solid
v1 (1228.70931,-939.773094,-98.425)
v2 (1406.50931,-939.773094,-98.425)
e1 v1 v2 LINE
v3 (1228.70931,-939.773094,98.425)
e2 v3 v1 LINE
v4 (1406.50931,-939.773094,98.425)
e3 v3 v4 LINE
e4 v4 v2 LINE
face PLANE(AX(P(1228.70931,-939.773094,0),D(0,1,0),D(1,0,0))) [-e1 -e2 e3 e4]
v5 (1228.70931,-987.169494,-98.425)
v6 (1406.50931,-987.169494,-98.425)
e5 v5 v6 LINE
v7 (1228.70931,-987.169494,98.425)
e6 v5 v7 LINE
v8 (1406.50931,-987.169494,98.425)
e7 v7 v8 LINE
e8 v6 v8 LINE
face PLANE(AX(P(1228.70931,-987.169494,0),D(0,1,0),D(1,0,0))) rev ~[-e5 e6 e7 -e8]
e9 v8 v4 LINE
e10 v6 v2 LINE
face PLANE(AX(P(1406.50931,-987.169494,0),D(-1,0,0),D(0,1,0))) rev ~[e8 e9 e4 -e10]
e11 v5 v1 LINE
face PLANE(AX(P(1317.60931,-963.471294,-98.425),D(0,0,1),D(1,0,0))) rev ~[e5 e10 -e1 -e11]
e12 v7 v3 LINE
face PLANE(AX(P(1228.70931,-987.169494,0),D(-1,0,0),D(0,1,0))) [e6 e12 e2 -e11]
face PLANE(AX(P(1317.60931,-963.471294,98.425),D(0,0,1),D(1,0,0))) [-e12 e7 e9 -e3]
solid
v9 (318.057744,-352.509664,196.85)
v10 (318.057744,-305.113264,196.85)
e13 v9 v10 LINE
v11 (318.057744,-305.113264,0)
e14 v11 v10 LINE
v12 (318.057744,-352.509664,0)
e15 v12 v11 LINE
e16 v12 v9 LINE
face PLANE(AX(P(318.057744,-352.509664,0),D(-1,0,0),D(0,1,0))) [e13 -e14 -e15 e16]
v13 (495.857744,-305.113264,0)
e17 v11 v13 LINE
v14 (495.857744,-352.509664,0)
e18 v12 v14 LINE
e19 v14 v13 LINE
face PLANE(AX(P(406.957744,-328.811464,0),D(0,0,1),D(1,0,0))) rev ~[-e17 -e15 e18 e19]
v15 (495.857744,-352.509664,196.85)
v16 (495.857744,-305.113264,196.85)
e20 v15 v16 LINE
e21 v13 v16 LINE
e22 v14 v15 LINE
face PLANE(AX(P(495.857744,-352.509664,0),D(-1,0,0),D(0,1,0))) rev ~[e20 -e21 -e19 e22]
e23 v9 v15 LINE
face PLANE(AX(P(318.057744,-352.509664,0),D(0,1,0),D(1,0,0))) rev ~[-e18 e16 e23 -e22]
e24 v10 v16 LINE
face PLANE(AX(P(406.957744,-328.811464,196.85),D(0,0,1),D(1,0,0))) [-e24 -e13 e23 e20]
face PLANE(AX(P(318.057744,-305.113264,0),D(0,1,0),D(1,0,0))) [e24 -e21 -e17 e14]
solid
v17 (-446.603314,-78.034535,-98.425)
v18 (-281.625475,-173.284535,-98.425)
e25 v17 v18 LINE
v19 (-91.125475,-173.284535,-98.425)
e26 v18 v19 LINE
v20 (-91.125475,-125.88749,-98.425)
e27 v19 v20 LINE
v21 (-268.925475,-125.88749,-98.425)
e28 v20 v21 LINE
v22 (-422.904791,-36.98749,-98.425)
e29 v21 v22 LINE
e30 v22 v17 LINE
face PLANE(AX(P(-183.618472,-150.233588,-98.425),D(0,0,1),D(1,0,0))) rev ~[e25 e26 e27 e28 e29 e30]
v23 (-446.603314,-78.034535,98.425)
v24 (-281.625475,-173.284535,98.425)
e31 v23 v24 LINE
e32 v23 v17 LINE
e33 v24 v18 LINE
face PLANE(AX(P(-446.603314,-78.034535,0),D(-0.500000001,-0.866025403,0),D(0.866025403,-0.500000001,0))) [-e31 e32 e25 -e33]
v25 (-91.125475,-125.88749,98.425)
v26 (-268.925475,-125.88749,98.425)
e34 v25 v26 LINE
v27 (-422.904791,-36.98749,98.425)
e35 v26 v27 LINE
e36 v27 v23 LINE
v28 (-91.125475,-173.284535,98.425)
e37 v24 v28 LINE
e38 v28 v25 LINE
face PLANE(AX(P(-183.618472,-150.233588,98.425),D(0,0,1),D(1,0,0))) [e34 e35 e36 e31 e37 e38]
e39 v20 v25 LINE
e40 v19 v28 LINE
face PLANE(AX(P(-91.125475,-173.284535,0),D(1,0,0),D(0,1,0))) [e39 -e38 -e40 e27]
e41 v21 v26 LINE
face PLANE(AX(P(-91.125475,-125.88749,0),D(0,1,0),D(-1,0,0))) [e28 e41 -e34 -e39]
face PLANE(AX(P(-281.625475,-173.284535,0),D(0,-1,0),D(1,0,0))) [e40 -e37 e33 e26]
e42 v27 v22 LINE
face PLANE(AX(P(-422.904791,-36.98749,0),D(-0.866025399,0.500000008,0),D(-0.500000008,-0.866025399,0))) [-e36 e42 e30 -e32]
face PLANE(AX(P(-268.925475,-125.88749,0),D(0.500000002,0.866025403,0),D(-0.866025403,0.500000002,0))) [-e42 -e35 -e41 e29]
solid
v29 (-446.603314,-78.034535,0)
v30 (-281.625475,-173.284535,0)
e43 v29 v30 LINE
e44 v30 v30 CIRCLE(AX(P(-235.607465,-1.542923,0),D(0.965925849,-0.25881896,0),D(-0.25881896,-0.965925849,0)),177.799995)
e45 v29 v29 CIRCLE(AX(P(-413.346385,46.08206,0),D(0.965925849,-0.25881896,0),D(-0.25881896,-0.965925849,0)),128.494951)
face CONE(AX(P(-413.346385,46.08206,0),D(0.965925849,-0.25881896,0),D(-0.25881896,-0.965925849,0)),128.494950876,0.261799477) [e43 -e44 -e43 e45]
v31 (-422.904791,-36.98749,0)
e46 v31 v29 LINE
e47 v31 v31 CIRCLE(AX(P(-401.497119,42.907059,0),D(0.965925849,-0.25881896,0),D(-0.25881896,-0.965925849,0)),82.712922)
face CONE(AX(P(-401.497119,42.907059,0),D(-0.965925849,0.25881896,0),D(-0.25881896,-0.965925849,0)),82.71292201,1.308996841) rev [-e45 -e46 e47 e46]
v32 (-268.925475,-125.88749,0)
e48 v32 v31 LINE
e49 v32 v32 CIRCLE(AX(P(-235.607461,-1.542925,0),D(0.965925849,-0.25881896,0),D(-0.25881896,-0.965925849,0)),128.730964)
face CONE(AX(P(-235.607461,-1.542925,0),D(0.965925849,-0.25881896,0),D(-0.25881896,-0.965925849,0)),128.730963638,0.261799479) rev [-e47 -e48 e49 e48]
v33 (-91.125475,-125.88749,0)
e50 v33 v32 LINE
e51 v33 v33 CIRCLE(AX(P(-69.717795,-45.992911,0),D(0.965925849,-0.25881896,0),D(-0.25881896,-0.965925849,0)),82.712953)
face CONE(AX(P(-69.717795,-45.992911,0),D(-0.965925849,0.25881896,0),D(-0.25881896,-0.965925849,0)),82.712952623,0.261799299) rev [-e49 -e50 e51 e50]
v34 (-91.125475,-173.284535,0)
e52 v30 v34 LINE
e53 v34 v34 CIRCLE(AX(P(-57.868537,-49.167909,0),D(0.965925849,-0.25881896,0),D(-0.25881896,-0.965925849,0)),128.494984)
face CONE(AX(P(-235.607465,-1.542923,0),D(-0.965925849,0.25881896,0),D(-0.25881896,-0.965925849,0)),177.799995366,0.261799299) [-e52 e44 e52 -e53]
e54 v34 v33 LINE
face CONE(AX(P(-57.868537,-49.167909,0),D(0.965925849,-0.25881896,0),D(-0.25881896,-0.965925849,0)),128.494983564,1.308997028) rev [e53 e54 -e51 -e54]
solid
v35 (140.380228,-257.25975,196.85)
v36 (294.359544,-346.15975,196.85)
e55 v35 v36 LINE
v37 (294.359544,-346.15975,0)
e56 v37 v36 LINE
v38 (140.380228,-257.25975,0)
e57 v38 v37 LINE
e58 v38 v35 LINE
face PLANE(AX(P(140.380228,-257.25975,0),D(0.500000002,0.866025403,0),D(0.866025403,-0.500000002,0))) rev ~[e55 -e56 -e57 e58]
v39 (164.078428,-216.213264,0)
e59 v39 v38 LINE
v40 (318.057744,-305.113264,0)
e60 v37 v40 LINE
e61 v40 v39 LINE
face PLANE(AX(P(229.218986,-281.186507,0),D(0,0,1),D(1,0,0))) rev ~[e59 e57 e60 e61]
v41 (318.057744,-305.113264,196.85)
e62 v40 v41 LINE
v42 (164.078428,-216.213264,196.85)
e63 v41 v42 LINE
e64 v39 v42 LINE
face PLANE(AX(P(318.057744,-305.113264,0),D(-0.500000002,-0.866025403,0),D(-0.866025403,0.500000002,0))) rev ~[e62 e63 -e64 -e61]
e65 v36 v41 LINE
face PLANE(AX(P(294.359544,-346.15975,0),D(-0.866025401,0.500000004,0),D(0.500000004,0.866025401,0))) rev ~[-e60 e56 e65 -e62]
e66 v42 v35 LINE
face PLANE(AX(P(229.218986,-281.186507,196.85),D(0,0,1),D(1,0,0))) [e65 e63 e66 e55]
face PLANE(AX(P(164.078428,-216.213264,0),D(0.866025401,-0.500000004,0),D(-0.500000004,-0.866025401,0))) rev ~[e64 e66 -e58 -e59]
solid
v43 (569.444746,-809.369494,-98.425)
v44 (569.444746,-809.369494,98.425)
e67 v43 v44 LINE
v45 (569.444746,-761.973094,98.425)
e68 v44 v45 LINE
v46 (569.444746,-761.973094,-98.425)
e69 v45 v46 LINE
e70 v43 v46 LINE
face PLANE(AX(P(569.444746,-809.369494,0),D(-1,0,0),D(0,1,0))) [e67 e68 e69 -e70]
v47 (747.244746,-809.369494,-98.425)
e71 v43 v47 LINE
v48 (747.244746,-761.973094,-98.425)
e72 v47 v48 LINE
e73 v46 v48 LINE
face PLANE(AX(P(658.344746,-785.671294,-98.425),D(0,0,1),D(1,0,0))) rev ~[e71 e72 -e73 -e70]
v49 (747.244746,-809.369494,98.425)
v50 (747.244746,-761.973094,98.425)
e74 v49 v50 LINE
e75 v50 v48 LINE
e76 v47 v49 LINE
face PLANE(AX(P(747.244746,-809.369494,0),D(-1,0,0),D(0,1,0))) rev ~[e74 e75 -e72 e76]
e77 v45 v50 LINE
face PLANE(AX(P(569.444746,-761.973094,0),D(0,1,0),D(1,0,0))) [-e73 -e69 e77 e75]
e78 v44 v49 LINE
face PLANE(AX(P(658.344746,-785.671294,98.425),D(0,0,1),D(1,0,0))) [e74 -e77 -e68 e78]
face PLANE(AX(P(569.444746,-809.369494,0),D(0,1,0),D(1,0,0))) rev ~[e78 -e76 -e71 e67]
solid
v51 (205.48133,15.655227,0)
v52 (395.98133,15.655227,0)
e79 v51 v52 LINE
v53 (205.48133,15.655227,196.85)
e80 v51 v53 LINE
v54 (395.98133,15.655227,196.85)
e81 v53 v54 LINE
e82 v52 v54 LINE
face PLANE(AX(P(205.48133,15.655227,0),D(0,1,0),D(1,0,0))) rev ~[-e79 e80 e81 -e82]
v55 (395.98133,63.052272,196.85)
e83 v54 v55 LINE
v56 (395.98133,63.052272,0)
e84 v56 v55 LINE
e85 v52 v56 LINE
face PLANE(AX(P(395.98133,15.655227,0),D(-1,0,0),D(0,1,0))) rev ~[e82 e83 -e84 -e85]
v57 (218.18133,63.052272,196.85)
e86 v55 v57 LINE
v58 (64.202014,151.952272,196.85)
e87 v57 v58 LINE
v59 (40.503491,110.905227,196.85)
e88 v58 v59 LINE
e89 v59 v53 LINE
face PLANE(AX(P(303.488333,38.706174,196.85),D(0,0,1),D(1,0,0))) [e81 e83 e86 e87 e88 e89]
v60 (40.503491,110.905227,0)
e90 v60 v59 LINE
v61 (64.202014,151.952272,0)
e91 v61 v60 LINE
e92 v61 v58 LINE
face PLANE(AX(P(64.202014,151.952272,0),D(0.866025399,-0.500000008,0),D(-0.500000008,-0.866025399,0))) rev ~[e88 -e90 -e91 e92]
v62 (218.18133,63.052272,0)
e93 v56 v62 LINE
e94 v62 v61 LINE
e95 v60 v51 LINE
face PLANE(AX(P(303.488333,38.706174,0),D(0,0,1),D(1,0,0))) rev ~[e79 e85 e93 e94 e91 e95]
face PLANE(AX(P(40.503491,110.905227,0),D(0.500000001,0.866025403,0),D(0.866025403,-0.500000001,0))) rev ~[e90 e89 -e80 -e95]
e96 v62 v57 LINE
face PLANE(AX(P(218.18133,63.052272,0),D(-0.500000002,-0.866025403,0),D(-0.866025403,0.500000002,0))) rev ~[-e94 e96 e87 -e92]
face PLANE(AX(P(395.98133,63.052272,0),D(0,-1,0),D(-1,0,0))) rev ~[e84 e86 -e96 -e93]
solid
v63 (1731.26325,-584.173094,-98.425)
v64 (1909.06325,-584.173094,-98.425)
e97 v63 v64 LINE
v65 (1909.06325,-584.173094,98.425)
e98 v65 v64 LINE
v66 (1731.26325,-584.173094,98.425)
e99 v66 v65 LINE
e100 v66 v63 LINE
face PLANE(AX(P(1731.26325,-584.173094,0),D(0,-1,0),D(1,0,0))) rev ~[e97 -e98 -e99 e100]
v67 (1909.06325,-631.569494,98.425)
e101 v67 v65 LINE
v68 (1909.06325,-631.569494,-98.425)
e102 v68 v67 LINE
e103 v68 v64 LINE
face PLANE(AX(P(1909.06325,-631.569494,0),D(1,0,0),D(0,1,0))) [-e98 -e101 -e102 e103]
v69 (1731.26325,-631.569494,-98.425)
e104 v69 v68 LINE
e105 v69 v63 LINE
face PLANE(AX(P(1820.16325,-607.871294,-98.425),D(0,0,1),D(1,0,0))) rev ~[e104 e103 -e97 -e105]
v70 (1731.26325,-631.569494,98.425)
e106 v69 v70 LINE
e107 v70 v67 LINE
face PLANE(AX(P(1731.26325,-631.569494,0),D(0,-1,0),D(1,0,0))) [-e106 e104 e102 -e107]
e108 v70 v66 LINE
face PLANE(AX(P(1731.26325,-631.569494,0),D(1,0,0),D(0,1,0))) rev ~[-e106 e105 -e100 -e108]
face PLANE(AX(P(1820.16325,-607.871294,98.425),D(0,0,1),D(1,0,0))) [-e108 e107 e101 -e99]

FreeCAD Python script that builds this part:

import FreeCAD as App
import Part
import Sketcher
from FreeCAD import Vector
Q = App.Units.Quantity


def add_polygon(sketch, points):
    """Adds a closed chain of lines whose ends are joined by coincident constraints."""
    first, n = sketch.GeometryCount, len(points)
    for a, b in zip(points, points[1:] + points[:1]):
        sketch.addGeometry(Part.LineSegment(App.Vector(*a, 0), App.Vector(*b, 0)), False)
    for i in range(n):
        sketch.addConstraint(Sketcher.Constraint("Coincident", first + i, 2, first + (i + 1) % n, 1))

doc = App.newDocument("Part")
body = doc.addObject("PartDesign::Body", "Body")

sketch1 = doc.addObject("Sketcher::SketchObject", "Sketch")
body.addObject(sketch1)
sketch1.AttachmentSupport = (doc.XY_Plane, [""])
sketch1.MapMode = "FlatFace"
add_polygon(sketch1, [(205.48133, 15.655227), (395.98133, 15.655227), (395.98133, 63.052272), (218.18133, 63.052272), (64.202014, 151.952272), (40.503491, 110.905227)])
sketch1.addConstraint(Sketcher.Constraint("Horizontal", 0))
sketch1.addConstraint(Sketcher.Constraint("Vertical", 1))
sketch1.addConstraint(Sketcher.Constraint("Horizontal", 2))
sketch1.addConstraint(Sketcher.Constraint("Perpendicular", 3, 4))
sketch1.addConstraint(Sketcher.Constraint("Perpendicular", 4, 5))
sketch1.addConstraint(Sketcher.Constraint("DistanceX", 2, 2, 2, 1, Q("7 in")))
sketch1.addConstraint(Sketcher.Constraint("Distance", 3, Q("7 in")))
sketch1.addConstraint(Sketcher.Constraint("DistanceX", 0, 1, 0, 2, Q("7.5 in")))
sketch1.addConstraint(Sketcher.Constraint("Angle", 3, Q("150 deg")))
sketch1.addConstraint(Sketcher.Constraint("Distance", 5, Q("7.5 in")))
sketch1.addConstraint(Sketcher.Constraint("DistanceX", -1, 1, 0, 2, 395.98133))
sketch1.addConstraint(Sketcher.Constraint("DistanceY", -1, 1, 3, 2, 151.952272))
pad1 = doc.addObject("PartDesign::Pad", "Pad")
body.addObject(pad1)
pad1.Profile = sketch1
pad1.Length = Q("7.75 in")
body2 = doc.addObject("PartDesign::Body", "Body001")

sketch2 = doc.addObject("Sketcher::SketchObject", "Sketch001")
body2.addObject(sketch2)
sketch2.AttachmentSupport = (doc.getObject("XY_Plane001"), [""])
sketch2.MapMode = "FlatFace"
add_polygon(sketch2, [(-446.603314, -78.034535), (-281.625475, -173.284535), (-91.125475, -173.284535), (-91.125475, -125.88749), (-268.925475, -125.88749), (-422.904791, -36.98749)])
sketch2.addGeometry(Part.LineSegment(Vector(-413.346384, 46.08206, 0), Vector(-57.868537, -49.167909, 0)), True)
sketch2.addConstraint(Sketcher.Constraint("Horizontal", 1))
sketch2.addConstraint(Sketcher.Constraint("Vertical", 2))
sketch2.addConstraint(Sketcher.Constraint("Horizontal", 3))
sketch2.addConstraint(Sketcher.Constraint("Parallel", 0, 4))
sketch2.addConstraint(Sketcher.Constraint("Perpendicular", 4, 5))
sketch2.addConstraint(Sketcher.Constraint("DistanceX", 3, 2, 3, 1, Q("7 in")))
sketch2.addConstraint(Sketcher.Constraint("Distance", 4, Q("7 in")))
sketch2.addConstraint(Sketcher.Constraint("DistanceX", 1, 1, 1, 2, Q("7.5 in")))
sketch2.addConstraint(Sketcher.Constraint("Angle", 0, Q("-30 deg")))
sketch2.addConstraint(Sketcher.Constraint("Angle", 6, Q("-14.999995 deg")))
sketch2.addConstraint(Sketcher.Constraint("Distance", 0, Q("7.5 in")))
sketch2.addConstraint(Sketcher.Constraint("Distance", 6, 368.017739))
sketch2.addConstraint(Sketcher.Constraint("DistanceY", 2, 2, -1, 1, 125.88749))
sketch2.addConstraint(Sketcher.Constraint("DistanceX", 4, 2, -1, 1, 422.904791))
sketch2.addConstraint(Sketcher.Constraint("DistanceY", -1, 1, 6, 1, 46.08206))
sketch2.addConstraint(Sketcher.Constraint("DistanceX", 5, 2, 6, 1, 33.25693))
revolution = doc.addObject("PartDesign::Revolution", "Revolution")
body2.addObject(revolution)
revolution.Profile = sketch2
revolution.ReferenceAxis = (sketch2, ["Axis0"])
revolution.Angle = 360
body3 = doc.addObject("PartDesign::Body", "Body002")
body3.AllowCompound = True

sketch3 = doc.addObject("Sketcher::SketchObject", "Sketch002")
body3.addObject(sketch3)
sketch3.AttachmentSupport = (doc.getObject("XY_Plane002"), [""])
sketch3.MapMode = "FlatFace"
add_polygon(sketch3, [(294.359544, -346.15975), (318.057744, -305.113264), (164.078428, -216.213264), (140.380228, -257.25975)])
add_polygon(sketch3, [(318.057744, -305.113264), (318.057744, -352.509664), (495.857744, -352.509664), (495.857744, -305.113264)])
sketch3.addConstraint(Sketcher.Constraint("Vertical", 4))
sketch3.addConstraint(Sketcher.Constraint("Horizontal", 5))
sketch3.addConstraint(Sketcher.Constraint("Vertical", 6))
sketch3.addConstraint(Sketcher.Constraint("Horizontal", 7))
sketch3.addConstraint(Sketcher.Constraint("Coincident", 7, 2, 0, 2))
sketch3.addConstraint(Sketcher.Constraint("Perpendicular", 0, 1))
sketch3.addConstraint(Sketcher.Constraint("Perpendicular", 1, 2))
sketch3.addConstraint(Sketcher.Constraint("Perpendicular", 2, 3))
sketch3.addConstraint(Sketcher.Constraint("DistanceX", 5, 1, 5, 2, Q("7 in")))
sketch3.addConstraint(Sketcher.Constraint("Distance", 1, Q("7 in")))
sketch3.addConstraint(Sketcher.Constraint("Angle", 0, Q("60 deg")))
sketch3.addConstraint(Sketcher.Constraint("DistanceY", 4, 2, 4, 1, Q("1.866 in")))
sketch3.addConstraint(Sketcher.Constraint("Distance", 0, Q("1.866 in")))
sketch3.addConstraint(Sketcher.Constraint("DistanceX", -1, 1, 1, 2, 164.078428))
sketch3.addConstraint(Sketcher.Constraint("DistanceY", 2, 2, -1, 1, 257.25975))
pad2 = doc.addObject("PartDesign::Pad", "Pad001")
body3.addObject(pad2)
pad2.Profile = sketch3
pad2.Length = Q("7.75 in")
body4 = doc.addObject("PartDesign::Body", "Body003")
body4.AllowCompound = True

sketch4 = doc.addObject("Sketcher::SketchObject", "Sketch003")
body4.addObject(sketch4)
sketch4.AttachmentSupport = (doc.getObject("XY_Plane003"), [""])
sketch4.MapMode = "FlatFace"
add_polygon(sketch4, [(1228.70931, -939.773094), (1228.70931, -987.169494), (1406.50931, -987.169494), (1406.50931, -939.773094)])
add_polygon(sketch4, [(569.444746, -761.973094), (569.444746, -809.369494), (747.244746, -809.369494), (747.244746, -761.973094)])
add_polygon(sketch4, [(1731.26325, -584.173094), (1731.26325, -631.569494), (1909.06325, -631.569494), (1909.06325, -584.173094)])
sketch4.addConstraint(Sketcher.Constraint("Vertical", 0))
sketch4.addConstraint(Sketcher.Constraint("Horizontal", 1))
sketch4.addConstraint(Sketcher.Constraint("Vertical", 2))
sketch4.addConstraint(Sketcher.Constraint("Horizontal", 3))
sketch4.addConstraint(Sketcher.Constraint("Vertical", 4))
sketch4.addConstraint(Sketcher.Constraint("Horizontal", 5))
sketch4.addConstraint(Sketcher.Constraint("Vertical", 6))
sketch4.addConstraint(Sketcher.Constraint("Horizontal", 7))
sketch4.addConstraint(Sketcher.Constraint("Vertical", 8))
sketch4.addConstraint(Sketcher.Constraint("Horizontal", 9))
sketch4.addConstraint(Sketcher.Constraint("Vertical", 10))
sketch4.addConstraint(Sketcher.Constraint("Horizontal", 11))
sketch4.addConstraint(Sketcher.Constraint("Equal", 3, 5))
sketch4.addConstraint(Sketcher.Constraint("Equal", 7, 9))
sketch4.addConstraint(Sketcher.Constraint("Equal", 2, 4))
sketch4.addConstraint(Sketcher.Constraint("Equal", 6, 8))
sketch4.addConstraint(Sketcher.Constraint("DistanceX", 1, 1, 1, 2, Q("7 in")))
sketch4.addConstraint(Sketcher.Constraint("DistanceY", 0, 2, 4, 2, Q("7 in")))
sketch4.addConstraint(Sketcher.Constraint("DistanceY", 1, 2, 8, 2, Q("14 in")))
sketch4.addConstraint(Sketcher.Constraint("DistanceY", 0, 2, 0, 1, Q("1.866 in")))
sketch4.addConstraint(Sketcher.Constraint("DistanceX", -1, 1, 0, 2, 1228.70931))
sketch4.addConstraint(Sketcher.Constraint("DistanceX", -1, 1, 8, 2, 1731.26325))
sketch4.addConstraint(Sketcher.Constraint("DistanceY", 0, 2, -1, 1, 987.169494))
sketch4.addConstraint(Sketcher.Constraint("DistanceX", -1, 1, 4, 2, 569.444746))
pad3 = doc.addObject("PartDesign::Pad", "Pad002")
body4.addObject(pad3)
pad3.Profile = sketch4
pad3.Length = Q("7.75 in")
pad3.Midplane = True
body5 = doc.addObject("PartDesign::Body", "Body004")

sketch5 = doc.addObject("Sketcher::SketchObject", "Sketch004")
body5.addObject(sketch5)
sketch5.AttachmentSupport = (doc.getObject("XY_Plane004"), [""])
sketch5.MapMode = "FlatFace"
add_polygon(sketch5, [(-281.625475, -173.284535), (-91.125475, -173.284535), (-91.125475, -125.88749), (-268.925475, -125.88749), (-422.904791, -36.98749), (-446.603314, -78.034535)])
sketch5.addConstraint(Sketcher.Constraint("Horizontal", 0))
sketch5.addConstraint(Sketcher.Constraint("Vertical", 1))
sketch5.addConstraint(Sketcher.Constraint("Horizontal", 2))
sketch5.addConstraint(Sketcher.Constraint("Perpendicular", 3, 4))
sketch5.addConstraint(Sketcher.Constraint("Perpendicular", 4, 5))
sketch5.addConstraint(Sketcher.Constraint("DistanceX", 2, 2, 2, 1, Q("7 in")))
sketch5.addConstraint(Sketcher.Constraint("Distance", 3, Q("7 in")))
sketch5.addConstraint(Sketcher.Constraint("DistanceX", 0, 1, 0, 2, Q("7.5 in")))
sketch5.addConstraint(Sketcher.Constraint("Angle", 3, Q("150 deg")))
sketch5.addConstraint(Sketcher.Constraint("Distance", 5, Q("7.5 in")))
sketch5.addConstraint(Sketcher.Constraint("DistanceY", 1, 2, -1, 1, 125.88749))
sketch5.addConstraint(Sketcher.Constraint("DistanceX", 3, 2, -1, 1, 422.904791))
pad4 = doc.addObject("PartDesign::Pad", "Pad003")
body5.addObject(pad4)
pad4.Profile = sketch5
pad4.Length = Q("7.75 in")
pad4.Midplane = True

doc.recompute()
